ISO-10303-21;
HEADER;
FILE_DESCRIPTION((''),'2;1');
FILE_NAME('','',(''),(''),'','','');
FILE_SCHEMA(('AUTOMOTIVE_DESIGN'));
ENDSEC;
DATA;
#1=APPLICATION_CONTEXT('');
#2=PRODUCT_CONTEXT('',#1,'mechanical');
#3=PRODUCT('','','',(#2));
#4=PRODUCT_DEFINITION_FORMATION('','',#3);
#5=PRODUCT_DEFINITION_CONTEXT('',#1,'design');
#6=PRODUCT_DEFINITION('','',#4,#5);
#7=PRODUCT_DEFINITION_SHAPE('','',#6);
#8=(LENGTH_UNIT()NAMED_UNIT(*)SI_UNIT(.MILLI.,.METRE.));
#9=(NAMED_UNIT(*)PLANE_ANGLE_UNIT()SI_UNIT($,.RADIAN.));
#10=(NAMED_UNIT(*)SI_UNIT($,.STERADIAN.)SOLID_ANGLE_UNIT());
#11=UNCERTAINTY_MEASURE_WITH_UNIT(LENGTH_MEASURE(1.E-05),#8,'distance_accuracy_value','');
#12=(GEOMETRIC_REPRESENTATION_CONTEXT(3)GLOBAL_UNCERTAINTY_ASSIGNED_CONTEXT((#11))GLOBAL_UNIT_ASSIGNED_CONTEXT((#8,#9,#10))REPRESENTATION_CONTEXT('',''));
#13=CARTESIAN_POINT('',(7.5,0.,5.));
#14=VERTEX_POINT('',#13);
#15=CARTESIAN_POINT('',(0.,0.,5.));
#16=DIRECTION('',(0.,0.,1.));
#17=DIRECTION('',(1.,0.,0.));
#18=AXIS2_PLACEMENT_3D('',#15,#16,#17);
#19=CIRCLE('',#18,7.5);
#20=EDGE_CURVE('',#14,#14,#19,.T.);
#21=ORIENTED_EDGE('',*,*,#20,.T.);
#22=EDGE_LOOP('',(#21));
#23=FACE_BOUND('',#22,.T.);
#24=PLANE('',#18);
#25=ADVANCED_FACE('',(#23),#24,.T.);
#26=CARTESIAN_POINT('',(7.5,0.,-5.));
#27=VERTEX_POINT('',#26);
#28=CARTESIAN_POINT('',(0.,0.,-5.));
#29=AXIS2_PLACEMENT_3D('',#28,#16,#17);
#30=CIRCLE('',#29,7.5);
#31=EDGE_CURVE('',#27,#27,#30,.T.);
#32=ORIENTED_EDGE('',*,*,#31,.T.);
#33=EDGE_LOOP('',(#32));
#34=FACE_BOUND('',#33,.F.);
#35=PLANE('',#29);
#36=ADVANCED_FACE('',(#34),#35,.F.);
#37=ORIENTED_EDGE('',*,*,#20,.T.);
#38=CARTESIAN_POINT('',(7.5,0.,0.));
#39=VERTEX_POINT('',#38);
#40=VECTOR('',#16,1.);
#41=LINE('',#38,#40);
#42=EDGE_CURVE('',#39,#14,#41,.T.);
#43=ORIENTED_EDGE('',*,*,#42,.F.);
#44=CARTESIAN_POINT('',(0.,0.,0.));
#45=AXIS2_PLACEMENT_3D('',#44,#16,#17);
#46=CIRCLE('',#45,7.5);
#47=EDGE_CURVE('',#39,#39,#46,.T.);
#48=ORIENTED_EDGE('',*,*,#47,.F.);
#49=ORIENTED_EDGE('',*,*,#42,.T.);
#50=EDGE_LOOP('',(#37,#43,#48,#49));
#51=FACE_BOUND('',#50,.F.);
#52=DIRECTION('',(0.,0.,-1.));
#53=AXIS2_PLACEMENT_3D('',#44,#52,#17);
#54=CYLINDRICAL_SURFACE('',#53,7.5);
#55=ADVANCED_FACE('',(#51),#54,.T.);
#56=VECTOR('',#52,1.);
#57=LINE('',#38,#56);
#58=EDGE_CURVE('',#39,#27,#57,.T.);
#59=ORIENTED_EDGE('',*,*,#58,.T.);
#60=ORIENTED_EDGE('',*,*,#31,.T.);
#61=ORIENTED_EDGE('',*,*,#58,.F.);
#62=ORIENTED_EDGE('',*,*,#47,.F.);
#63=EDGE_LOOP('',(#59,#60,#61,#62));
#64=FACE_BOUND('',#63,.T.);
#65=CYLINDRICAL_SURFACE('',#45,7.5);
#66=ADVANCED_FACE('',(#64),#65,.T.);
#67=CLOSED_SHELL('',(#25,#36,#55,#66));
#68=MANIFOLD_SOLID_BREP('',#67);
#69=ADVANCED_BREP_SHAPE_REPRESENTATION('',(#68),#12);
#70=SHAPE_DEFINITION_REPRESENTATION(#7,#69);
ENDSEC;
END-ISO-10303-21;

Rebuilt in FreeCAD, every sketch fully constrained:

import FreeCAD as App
import Part
import Sketcher
Q = App.Units.Quantity

doc = App.newDocument("Part")
params = doc.addObject("Spreadsheet::Sheet", "Params")
for row, (alias, value) in enumerate([
    ("sketch1_diameter", "15 mm"),
    ("pad1_length", "10 mm"),
], start=1):
    params.set(f"A{row}", alias)
    params.set(f"B{row}", "=" + value)
    params.setAlias(f"B{row}", alias)

body = doc.addObject("PartDesign::Body", "Body")

# Sketch on XY plane
sketch1 = doc.addObject("Sketcher::SketchObject", "Sketch")
body.addObject(sketch1)
sketch1.AttachmentSupport = (doc.XY_Plane, [""])
sketch1.MapMode = "FlatFace"
sketch1.addGeometry(Part.Circle(App.Vector(0, 0, 0), App.Vector(0, 0, 1), 8), False)
sketch1.addConstraint([
    Sketcher.Constraint("Coincident", 0, 3, -1, 1),
    Sketcher.Constraint("Diameter", 0, Q("15 mm")),
])
sketch1.setExpression("Constraints[1]", "Params.sketch1_diameter")
pad1 = doc.addObject("PartDesign::Pad", "Pad")
body.addObject(pad1)
pad1.Profile = sketch1
pad1.setExpression("Length", "Params.pad1_length")
pad1.Midplane = True

doc.recompute()
